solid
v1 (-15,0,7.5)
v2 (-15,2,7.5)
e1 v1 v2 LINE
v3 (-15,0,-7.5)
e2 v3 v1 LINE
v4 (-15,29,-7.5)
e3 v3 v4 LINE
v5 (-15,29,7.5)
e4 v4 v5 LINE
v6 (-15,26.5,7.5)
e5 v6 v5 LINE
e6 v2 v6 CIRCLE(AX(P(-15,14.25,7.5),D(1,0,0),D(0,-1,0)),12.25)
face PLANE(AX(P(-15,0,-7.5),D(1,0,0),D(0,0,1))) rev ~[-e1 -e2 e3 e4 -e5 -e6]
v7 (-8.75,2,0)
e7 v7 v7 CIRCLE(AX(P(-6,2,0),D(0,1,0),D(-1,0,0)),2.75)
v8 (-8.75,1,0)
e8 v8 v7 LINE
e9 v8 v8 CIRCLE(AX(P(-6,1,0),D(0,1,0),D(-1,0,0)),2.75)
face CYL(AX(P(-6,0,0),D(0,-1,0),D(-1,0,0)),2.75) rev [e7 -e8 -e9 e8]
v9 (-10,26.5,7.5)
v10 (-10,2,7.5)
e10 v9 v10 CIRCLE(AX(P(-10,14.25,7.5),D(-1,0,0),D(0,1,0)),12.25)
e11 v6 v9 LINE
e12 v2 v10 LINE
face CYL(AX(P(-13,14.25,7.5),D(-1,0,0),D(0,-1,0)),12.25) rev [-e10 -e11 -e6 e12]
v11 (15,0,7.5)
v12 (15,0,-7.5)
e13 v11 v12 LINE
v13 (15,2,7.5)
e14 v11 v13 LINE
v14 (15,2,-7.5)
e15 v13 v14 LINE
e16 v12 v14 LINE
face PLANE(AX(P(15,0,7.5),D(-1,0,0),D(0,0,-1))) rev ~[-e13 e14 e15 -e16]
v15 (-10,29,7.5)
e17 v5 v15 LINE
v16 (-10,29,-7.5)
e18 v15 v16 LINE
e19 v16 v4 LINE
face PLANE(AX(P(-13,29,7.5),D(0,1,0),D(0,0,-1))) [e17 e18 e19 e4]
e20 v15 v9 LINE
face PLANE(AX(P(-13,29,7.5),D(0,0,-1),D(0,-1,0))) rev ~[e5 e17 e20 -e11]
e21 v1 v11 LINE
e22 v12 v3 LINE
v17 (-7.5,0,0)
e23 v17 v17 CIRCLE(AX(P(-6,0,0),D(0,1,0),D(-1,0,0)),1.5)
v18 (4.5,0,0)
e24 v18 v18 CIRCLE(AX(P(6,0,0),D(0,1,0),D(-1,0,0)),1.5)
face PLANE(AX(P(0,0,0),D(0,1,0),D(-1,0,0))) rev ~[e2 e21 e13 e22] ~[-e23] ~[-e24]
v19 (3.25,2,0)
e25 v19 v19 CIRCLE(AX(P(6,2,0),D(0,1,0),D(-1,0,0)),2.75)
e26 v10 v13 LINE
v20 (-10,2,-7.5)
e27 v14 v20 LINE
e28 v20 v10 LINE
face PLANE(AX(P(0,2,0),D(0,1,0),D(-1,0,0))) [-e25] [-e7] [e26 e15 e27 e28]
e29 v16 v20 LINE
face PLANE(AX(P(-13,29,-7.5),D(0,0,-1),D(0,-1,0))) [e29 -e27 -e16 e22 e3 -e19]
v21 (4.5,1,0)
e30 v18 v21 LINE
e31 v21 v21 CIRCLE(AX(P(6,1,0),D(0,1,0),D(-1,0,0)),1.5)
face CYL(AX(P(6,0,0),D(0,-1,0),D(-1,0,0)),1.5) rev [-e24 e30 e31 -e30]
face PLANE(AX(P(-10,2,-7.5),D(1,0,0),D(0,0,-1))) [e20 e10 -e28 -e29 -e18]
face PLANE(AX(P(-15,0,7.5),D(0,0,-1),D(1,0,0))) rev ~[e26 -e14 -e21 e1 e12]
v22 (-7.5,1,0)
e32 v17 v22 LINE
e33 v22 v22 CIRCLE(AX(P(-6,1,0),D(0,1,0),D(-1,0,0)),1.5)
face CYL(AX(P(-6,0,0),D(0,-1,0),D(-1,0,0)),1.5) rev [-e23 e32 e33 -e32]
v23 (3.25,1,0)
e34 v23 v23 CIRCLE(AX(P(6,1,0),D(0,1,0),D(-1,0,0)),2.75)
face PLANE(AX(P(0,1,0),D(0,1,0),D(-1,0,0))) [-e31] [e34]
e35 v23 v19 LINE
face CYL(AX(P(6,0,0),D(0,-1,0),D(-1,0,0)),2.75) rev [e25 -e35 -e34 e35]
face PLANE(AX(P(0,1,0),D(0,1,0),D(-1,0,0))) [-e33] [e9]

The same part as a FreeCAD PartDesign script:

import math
import FreeCAD as App
import Part
import Sketcher

V = App.Vector

doc = App.newDocument("Part")
body = doc.addObject("PartDesign::Body", "Body")

# Sketch on XZ plane
sketch1 = body.newObject("Sketcher::SketchObject", "Sketch")
sketch1.AttachmentSupport = (doc.getObject("XZ_Plane"), [""])
sketch1.MapMode = "FlatFace"
sketch1.addGeometry(Part.LineSegment(V(-13, -7.5, 0), V(-13, 7.5, 0)), False)
sketch1.addGeometry(Part.LineSegment(V(-13, 7.5, 0), V(15, 7.5, 0)), False)
sketch1.addGeometry(Part.LineSegment(V(15, 7.5, 0), V(15, -7.5, 0)), False)
sketch1.addGeometry(Part.LineSegment(V(15, -7.5, 0), V(-13, -7.5, 0)), False)
sketch1.addGeometry(Part.Circle(V(6, 0, 0), V(0, 0, 1), 2.75), False)
sketch1.addGeometry(Part.Circle(V(-6, 0, 0), V(0, 0, 1), 2.75), False)
sketch1.addConstraint(Sketcher.Constraint("Coincident", 0, 2, 1, 1))
sketch1.addConstraint(Sketcher.Constraint("Coincident", 1, 2, 2, 1))
sketch1.addConstraint(Sketcher.Constraint("Coincident", 2, 2, 3, 1))
sketch1.addConstraint(Sketcher.Constraint("Coincident", 3, 2, 0, 1))
sketch1.addConstraint(Sketcher.Constraint("Vertical", 0))
sketch1.addConstraint(Sketcher.Constraint("Horizontal", 1))
sketch1.addConstraint(Sketcher.Constraint("Vertical", 2))
sketch1.addConstraint(Sketcher.Constraint("Horizontal", 3))
sketch1.addConstraint(Sketcher.Constraint("Equal", 4, 5))
sketch1.addConstraint(Sketcher.Constraint("Symmetric", 4, 3, 5, 3, -1, 1))
sketch1.addConstraint(Sketcher.Constraint("PointOnObject", 4, 3, -1))
sketch1.addConstraint(Sketcher.Constraint("Diameter", 4, 5.5))
sketch1.addConstraint(Sketcher.Constraint("DistanceY", 0, 1, 0, 2, 15.0))
sketch1.addConstraint(Sketcher.Constraint("DistanceX", -1, 1, 4, 3, 6.0))
sketch1.addConstraint(Sketcher.Constraint("DistanceX", -1, 1, 1, 2, 15.0))
sketch1.addConstraint(Sketcher.Constraint("DistanceX", 1, 1, 1, 2, 28.0))
sketch1.addConstraint(Sketcher.Constraint("DistanceY", -1, 1, 0, 2, 7.5))
pad1 = body.newObject("PartDesign::Pad", "Pad")
pad1.Profile = sketch1
pad1.Length = 2
pad1.Reversed = True

# Sketch on XZ plane
sketch2 = body.newObject("Sketcher::SketchObject", "Sketch001")
sketch2.AttachmentSupport = (doc.getObject("XZ_Plane"), [""])
sketch2.MapMode = "FlatFace"
sketch2.addGeometry(Part.Circle(V(-6, 0, 0), V(0, 0, 1), 2.75), False)
sketch2.addGeometry(Part.Circle(V(-6, 0, 0), V(0, 0, 1), 1.5), False)
sketch2.addGeometry(Part.Circle(V(6, 0, 0), V(0, 0, 1), 2.75), False)
sketch2.addGeometry(Part.Circle(V(6, 0, 0), V(0, 0, 1), 1.5), False)
sketch2.addConstraint(Sketcher.Constraint("Coincident", 1, 3, 0, 3))
sketch2.addConstraint(Sketcher.Constraint("Coincident", 3, 3, 2, 3))
sketch2.addConstraint(Sketcher.Constraint("Equal", 0, 2))
sketch2.addConstraint(Sketcher.Constraint("Equal", 1, 3))
sketch2.addConstraint(Sketcher.Constraint("Symmetric", 0, 3, 2, 3, -1, 1))
sketch2.addConstraint(Sketcher.Constraint("PointOnObject", 0, 3, -1))
sketch2.addConstraint(Sketcher.Constraint("Diameter", 1, 3.0))
sketch2.addConstraint(Sketcher.Constraint("Diameter", 0, 5.5))
sketch2.addConstraint(Sketcher.Constraint("DistanceX", 0, 3, -1, 1, 6.0))
pad2 = body.newObject("PartDesign::Pad", "Pad001")
pad2.Profile = sketch2
pad2.Length = 1
pad2.Reversed = True

# Sketch on XZ plane
sketch3 = body.newObject("Sketcher::SketchObject", "Sketch002")
sketch3.AttachmentSupport = (doc.getObject("XZ_Plane"), [""])
sketch3.MapMode = "FlatFace"
sketch3.addGeometry(Part.LineSegment(V(-15, -7.5, 0), V(-15, 7.5, 0)), False)
sketch3.addGeometry(Part.LineSegment(V(-15, 7.5, 0), V(-13, 7.5, 0)), False)
sketch3.addGeometry(Part.LineSegment(V(-13, 7.5, 0), V(-13, -7.5, 0)), False)
sketch3.addGeometry(Part.LineSegment(V(-13, -7.5, 0), V(-15, -7.5, 0)), False)
sketch3.addConstraint(Sketcher.Constraint("Coincident", 0, 2, 1, 1))
sketch3.addConstraint(Sketcher.Constraint("Coincident", 1, 2, 2, 1))
sketch3.addConstraint(Sketcher.Constraint("Coincident", 2, 2, 3, 1))
sketch3.addConstraint(Sketcher.Constraint("Coincident", 3, 2, 0, 1))
sketch3.addConstraint(Sketcher.Constraint("Vertical", 0))
sketch3.addConstraint(Sketcher.Constraint("Horizontal", 1))
sketch3.addConstraint(Sketcher.Constraint("Vertical", 2))
sketch3.addConstraint(Sketcher.Constraint("Horizontal", 3))
sketch3.addConstraint(Sketcher.Constraint("DistanceX", 1, 1, 1, 2, 2.0))
sketch3.addConstraint(Sketcher.Constraint("DistanceY", 0, 1, 0, 2, 15.0))
sketch3.addConstraint(Sketcher.Constraint("DistanceX", 0, 2, -1, 1, 15.0))
sketch3.addConstraint(Sketcher.Constraint("DistanceY", -1, 1, 0, 2, 7.5))
pad3 = body.newObject("PartDesign::Pad", "Pad002")
pad3.Profile = sketch3
pad3.Length = 29
pad3.Reversed = True

# Sketch on YZ plane
sketch4 = body.newObject("Sketcher::SketchObject", "Sketch003")
sketch4.AttachmentSupport = (doc.getObject("YZ_Plane"), [""])
sketch4.MapMode = "FlatFace"
sketch4.AttachmentOffset = App.Placement(V(0, 0, -13), App.Rotation())
sketch4.addGeometry(Part.LineSegment(V(26.5, 7.5, 0), V(2, 7.5, 0)), False)
sketch4.addGeometry(Part.ArcOfCircle(Part.Circle(V(14.25, 7.5, 0), V(0, 0, 1), 12.25), math.radians(180), math.radians(360)), False)
sketch4.addConstraint(Sketcher.Constraint("Coincident", 0, 1, 1, 2))
sketch4.addConstraint(Sketcher.Constraint("Coincident", 1, 1, 0, 2))
sketch4.addConstraint(Sketcher.Constraint("Horizontal", 0))
sketch4.addConstraint(Sketcher.Constraint("Horizontal", 1, 3, 0, 1))
sketch4.addConstraint(Sketcher.Constraint("Radius", 1, 12.25))
sketch4.addConstraint(Sketcher.Constraint("DistanceX", -1, 1, 1, 1, 2.0))
sketch4.addConstraint(Sketcher.Constraint("DistanceY", -1, 1, 1, 3, 7.5))
pocket1 = body.newObject("PartDesign::Pocket", "Pocket")
pocket1.Profile = sketch4
pocket1.Length = 30

# Sketch on YZ plane
sketch5 = body.newObject("Sketcher::SketchObject", "Sketch004")
sketch5.AttachmentSupport = (doc.getObject("YZ_Plane"), [""])
sketch5.MapMode = "FlatFace"
sketch5.AttachmentOffset = App.Placement(V(0, 0, -13), App.Rotation())
sketch5.addGeometry(Part.LineSegment(V(29, -7.5, 0), V(29, 7.5, 0)), False)
sketch5.addGeometry(Part.LineSegment(V(29, 7.5, 0), V(26.5, 7.5, 0)), False)
sketch5.addGeometry(Part.ArcOfCircle(Part.Circle(V(14.25, 7.5, 0), V(0, 0, 1), 12.25), math.radians(180), math.radians(360)), False)
sketch5.addGeometry(Part.LineSegment(V(2, 7.5, 0), V(2, -7.5, 0)), False)
sketch5.addGeometry(Part.LineSegment(V(2, -7.5, 0), V(29, -7.5, 0)), False)
sketch5.addConstraint(Sketcher.Constraint("Coincident", 0, 2, 1, 1))
sketch5.addConstraint(Sketcher.Constraint("Coincident", 1, 2, 2, 2))
sketch5.addConstraint(Sketcher.Constraint("Tangent", 2, 1, 3, 1))
sketch5.addConstraint(Sketcher.Constraint("Coincident", 3, 2, 4, 1))
sketch5.addConstraint(Sketcher.Constraint("Coincident", 4, 2, 0, 1))
sketch5.addConstraint(Sketcher.Constraint("Vertical", 0))
sketch5.addConstraint(Sketcher.Constraint("Horizontal", 1))
sketch5.addConstraint(Sketcher.Constraint("Vertical", 3))
sketch5.addConstraint(Sketcher.Constraint("Horizontal", 4))
sketch5.addConstraint(Sketcher.Constraint("Horizontal", 2, 3, 0, 2))
sketch5.addConstraint(Sketcher.Constraint("DistanceX", 4, 1, 4, 2, 27.0))
sketch5.addConstraint(Sketcher.Constraint("DistanceY", 0, 1, 0, 2, 15.0))
sketch5.addConstraint(Sketcher.Constraint("Radius", 2, 12.25))
sketch5.addConstraint(Sketcher.Constraint("DistanceX", -1, 1, 0, 2, 29.0))
sketch5.addConstraint(Sketcher.Constraint("DistanceY", -1, 1, 2, 3, 7.5))
pad4 = body.newObject("PartDesign::Pad", "Pad003")
pad4.Profile = sketch5
pad4.Length = 3

doc.recompute()
